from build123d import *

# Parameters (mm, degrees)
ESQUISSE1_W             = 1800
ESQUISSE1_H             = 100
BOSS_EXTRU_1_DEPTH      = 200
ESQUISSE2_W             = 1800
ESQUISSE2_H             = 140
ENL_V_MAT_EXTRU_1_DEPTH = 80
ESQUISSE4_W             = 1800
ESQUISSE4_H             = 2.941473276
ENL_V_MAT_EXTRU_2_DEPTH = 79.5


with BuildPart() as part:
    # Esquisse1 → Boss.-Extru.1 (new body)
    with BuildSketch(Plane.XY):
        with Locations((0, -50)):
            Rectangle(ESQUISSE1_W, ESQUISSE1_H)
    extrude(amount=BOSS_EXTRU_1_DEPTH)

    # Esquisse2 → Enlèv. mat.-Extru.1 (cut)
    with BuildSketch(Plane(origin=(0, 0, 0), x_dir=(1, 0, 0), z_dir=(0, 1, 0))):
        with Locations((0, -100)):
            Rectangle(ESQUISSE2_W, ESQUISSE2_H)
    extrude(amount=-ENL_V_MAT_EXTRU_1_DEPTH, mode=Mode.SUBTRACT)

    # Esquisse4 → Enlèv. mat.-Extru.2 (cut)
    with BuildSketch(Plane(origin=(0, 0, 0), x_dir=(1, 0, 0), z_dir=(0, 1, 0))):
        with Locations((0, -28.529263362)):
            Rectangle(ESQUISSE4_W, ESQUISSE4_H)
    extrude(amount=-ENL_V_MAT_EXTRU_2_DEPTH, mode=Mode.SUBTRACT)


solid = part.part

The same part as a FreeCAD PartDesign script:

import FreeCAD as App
import Part
import Sketcher


def add_polygon(sketch, points):
    """Adds a closed chain of lines whose ends are joined by coincident constraints."""
    first, n = sketch.GeometryCount, len(points)
    for a, b in zip(points, points[1:] + points[:1]):
        sketch.addGeometry(Part.LineSegment(App.Vector(*a, 0), App.Vector(*b, 0)), False)
    for i in range(n):
        sketch.addConstraint(Sketcher.Constraint("Coincident", first + i, 2, first + (i + 1) % n, 1))

doc = App.newDocument("Part")
body = doc.addObject("PartDesign::Body", "Body")

sketch1 = doc.addObject("Sketcher::SketchObject", "Sketch")
body.addObject(sketch1)
sketch1.AttachmentSupport = (doc.XY_Plane, [""])
sketch1.MapMode = "FlatFace"
add_polygon(sketch1, [(-900, 0), (-900, -100), (900, -100), (900, 0)])
sketch1.addConstraint(Sketcher.Constraint("Vertical", 0))
sketch1.addConstraint(Sketcher.Constraint("Horizontal", 1))
sketch1.addConstraint(Sketcher.Constraint("Vertical", 2))
sketch1.addConstraint(Sketcher.Constraint("Horizontal", 3))
sketch1.addConstraint(Sketcher.Constraint("Symmetric", 2, 2, 3, 2, -1, 1))
sketch1.addConstraint(Sketcher.Constraint("DistanceX", 1, 1, 1, 2, 1800.0))
sketch1.addConstraint(Sketcher.Constraint("DistanceY", 0, 2, 0, 1, 100.0))
pad1 = doc.addObject("PartDesign::Pad", "Pad")
body.addObject(pad1)
pad1.Profile = sketch1
pad1.Length = 200

sketch2 = doc.addObject("Sketcher::SketchObject", "Sketch001")
body.addObject(sketch2)
sketch2.AttachmentSupport = (doc.XZ_Plane, [""])
sketch2.MapMode = "FlatFace"
add_polygon(sketch2, [(-900, 30), (-900, 170), (900, 170), (900, 30)])
sketch2.addConstraint(Sketcher.Constraint("Vertical", 0))
sketch2.addConstraint(Sketcher.Constraint("Horizontal", 1))
sketch2.addConstraint(Sketcher.Constraint("Vertical", 2))
sketch2.addConstraint(Sketcher.Constraint("Horizontal", 3))
sketch2.addConstraint(Sketcher.Constraint("DistanceX", 1, 1, 1, 2, 1800.0))
sketch2.addConstraint(Sketcher.Constraint("DistanceY", 0, 1, 0, 2, 140.0))
sketch2.addConstraint(Sketcher.Constraint("DistanceX", 0, 2, -1, 1, 900.0))
sketch2.addConstraint(Sketcher.Constraint("DistanceY", -1, 1, 0, 2, 170.0))
pocket1 = doc.addObject("PartDesign::Pocket", "Pocket")
body.addObject(pocket1)
pocket1.Profile = sketch2
pocket1.Length = 80
pocket1.Reversed = True

sketch3 = doc.addObject("Sketcher::SketchObject", "Sketch002")
body.addObject(sketch3)
sketch3.AttachmentSupport = (doc.XZ_Plane, [""])
sketch3.MapMode = "FlatFace"
add_polygon(sketch3, [(-900, 27.058527), (-900, 30), (900, 30), (900, 27.058527)])
sketch3.addConstraint(Sketcher.Constraint("Vertical", 0))
sketch3.addConstraint(Sketcher.Constraint("Horizontal", 1))
sketch3.addConstraint(Sketcher.Constraint("Vertical", 2))
sketch3.addConstraint(Sketcher.Constraint("Horizontal", 3))
sketch3.addConstraint(Sketcher.Constraint("DistanceX", 1, 1, 1, 2, 1800.0))
sketch3.addConstraint(Sketcher.Constraint("DistanceX", 0, 2, -1, 1, 900.0))
sketch3.addConstraint(Sketcher.Constraint("DistanceY", -1, 1, 0, 2, 30.0))
sketch3.addConstraint(Sketcher.Constraint("DistanceY", 0, 1, 0, 2, 2.941473))
pocket2 = doc.addObject("PartDesign::Pocket", "Pocket001")
body.addObject(pocket2)
pocket2.Profile = sketch3
pocket2.Length = 79.5
pocket2.Reversed = True

doc.recompute()
